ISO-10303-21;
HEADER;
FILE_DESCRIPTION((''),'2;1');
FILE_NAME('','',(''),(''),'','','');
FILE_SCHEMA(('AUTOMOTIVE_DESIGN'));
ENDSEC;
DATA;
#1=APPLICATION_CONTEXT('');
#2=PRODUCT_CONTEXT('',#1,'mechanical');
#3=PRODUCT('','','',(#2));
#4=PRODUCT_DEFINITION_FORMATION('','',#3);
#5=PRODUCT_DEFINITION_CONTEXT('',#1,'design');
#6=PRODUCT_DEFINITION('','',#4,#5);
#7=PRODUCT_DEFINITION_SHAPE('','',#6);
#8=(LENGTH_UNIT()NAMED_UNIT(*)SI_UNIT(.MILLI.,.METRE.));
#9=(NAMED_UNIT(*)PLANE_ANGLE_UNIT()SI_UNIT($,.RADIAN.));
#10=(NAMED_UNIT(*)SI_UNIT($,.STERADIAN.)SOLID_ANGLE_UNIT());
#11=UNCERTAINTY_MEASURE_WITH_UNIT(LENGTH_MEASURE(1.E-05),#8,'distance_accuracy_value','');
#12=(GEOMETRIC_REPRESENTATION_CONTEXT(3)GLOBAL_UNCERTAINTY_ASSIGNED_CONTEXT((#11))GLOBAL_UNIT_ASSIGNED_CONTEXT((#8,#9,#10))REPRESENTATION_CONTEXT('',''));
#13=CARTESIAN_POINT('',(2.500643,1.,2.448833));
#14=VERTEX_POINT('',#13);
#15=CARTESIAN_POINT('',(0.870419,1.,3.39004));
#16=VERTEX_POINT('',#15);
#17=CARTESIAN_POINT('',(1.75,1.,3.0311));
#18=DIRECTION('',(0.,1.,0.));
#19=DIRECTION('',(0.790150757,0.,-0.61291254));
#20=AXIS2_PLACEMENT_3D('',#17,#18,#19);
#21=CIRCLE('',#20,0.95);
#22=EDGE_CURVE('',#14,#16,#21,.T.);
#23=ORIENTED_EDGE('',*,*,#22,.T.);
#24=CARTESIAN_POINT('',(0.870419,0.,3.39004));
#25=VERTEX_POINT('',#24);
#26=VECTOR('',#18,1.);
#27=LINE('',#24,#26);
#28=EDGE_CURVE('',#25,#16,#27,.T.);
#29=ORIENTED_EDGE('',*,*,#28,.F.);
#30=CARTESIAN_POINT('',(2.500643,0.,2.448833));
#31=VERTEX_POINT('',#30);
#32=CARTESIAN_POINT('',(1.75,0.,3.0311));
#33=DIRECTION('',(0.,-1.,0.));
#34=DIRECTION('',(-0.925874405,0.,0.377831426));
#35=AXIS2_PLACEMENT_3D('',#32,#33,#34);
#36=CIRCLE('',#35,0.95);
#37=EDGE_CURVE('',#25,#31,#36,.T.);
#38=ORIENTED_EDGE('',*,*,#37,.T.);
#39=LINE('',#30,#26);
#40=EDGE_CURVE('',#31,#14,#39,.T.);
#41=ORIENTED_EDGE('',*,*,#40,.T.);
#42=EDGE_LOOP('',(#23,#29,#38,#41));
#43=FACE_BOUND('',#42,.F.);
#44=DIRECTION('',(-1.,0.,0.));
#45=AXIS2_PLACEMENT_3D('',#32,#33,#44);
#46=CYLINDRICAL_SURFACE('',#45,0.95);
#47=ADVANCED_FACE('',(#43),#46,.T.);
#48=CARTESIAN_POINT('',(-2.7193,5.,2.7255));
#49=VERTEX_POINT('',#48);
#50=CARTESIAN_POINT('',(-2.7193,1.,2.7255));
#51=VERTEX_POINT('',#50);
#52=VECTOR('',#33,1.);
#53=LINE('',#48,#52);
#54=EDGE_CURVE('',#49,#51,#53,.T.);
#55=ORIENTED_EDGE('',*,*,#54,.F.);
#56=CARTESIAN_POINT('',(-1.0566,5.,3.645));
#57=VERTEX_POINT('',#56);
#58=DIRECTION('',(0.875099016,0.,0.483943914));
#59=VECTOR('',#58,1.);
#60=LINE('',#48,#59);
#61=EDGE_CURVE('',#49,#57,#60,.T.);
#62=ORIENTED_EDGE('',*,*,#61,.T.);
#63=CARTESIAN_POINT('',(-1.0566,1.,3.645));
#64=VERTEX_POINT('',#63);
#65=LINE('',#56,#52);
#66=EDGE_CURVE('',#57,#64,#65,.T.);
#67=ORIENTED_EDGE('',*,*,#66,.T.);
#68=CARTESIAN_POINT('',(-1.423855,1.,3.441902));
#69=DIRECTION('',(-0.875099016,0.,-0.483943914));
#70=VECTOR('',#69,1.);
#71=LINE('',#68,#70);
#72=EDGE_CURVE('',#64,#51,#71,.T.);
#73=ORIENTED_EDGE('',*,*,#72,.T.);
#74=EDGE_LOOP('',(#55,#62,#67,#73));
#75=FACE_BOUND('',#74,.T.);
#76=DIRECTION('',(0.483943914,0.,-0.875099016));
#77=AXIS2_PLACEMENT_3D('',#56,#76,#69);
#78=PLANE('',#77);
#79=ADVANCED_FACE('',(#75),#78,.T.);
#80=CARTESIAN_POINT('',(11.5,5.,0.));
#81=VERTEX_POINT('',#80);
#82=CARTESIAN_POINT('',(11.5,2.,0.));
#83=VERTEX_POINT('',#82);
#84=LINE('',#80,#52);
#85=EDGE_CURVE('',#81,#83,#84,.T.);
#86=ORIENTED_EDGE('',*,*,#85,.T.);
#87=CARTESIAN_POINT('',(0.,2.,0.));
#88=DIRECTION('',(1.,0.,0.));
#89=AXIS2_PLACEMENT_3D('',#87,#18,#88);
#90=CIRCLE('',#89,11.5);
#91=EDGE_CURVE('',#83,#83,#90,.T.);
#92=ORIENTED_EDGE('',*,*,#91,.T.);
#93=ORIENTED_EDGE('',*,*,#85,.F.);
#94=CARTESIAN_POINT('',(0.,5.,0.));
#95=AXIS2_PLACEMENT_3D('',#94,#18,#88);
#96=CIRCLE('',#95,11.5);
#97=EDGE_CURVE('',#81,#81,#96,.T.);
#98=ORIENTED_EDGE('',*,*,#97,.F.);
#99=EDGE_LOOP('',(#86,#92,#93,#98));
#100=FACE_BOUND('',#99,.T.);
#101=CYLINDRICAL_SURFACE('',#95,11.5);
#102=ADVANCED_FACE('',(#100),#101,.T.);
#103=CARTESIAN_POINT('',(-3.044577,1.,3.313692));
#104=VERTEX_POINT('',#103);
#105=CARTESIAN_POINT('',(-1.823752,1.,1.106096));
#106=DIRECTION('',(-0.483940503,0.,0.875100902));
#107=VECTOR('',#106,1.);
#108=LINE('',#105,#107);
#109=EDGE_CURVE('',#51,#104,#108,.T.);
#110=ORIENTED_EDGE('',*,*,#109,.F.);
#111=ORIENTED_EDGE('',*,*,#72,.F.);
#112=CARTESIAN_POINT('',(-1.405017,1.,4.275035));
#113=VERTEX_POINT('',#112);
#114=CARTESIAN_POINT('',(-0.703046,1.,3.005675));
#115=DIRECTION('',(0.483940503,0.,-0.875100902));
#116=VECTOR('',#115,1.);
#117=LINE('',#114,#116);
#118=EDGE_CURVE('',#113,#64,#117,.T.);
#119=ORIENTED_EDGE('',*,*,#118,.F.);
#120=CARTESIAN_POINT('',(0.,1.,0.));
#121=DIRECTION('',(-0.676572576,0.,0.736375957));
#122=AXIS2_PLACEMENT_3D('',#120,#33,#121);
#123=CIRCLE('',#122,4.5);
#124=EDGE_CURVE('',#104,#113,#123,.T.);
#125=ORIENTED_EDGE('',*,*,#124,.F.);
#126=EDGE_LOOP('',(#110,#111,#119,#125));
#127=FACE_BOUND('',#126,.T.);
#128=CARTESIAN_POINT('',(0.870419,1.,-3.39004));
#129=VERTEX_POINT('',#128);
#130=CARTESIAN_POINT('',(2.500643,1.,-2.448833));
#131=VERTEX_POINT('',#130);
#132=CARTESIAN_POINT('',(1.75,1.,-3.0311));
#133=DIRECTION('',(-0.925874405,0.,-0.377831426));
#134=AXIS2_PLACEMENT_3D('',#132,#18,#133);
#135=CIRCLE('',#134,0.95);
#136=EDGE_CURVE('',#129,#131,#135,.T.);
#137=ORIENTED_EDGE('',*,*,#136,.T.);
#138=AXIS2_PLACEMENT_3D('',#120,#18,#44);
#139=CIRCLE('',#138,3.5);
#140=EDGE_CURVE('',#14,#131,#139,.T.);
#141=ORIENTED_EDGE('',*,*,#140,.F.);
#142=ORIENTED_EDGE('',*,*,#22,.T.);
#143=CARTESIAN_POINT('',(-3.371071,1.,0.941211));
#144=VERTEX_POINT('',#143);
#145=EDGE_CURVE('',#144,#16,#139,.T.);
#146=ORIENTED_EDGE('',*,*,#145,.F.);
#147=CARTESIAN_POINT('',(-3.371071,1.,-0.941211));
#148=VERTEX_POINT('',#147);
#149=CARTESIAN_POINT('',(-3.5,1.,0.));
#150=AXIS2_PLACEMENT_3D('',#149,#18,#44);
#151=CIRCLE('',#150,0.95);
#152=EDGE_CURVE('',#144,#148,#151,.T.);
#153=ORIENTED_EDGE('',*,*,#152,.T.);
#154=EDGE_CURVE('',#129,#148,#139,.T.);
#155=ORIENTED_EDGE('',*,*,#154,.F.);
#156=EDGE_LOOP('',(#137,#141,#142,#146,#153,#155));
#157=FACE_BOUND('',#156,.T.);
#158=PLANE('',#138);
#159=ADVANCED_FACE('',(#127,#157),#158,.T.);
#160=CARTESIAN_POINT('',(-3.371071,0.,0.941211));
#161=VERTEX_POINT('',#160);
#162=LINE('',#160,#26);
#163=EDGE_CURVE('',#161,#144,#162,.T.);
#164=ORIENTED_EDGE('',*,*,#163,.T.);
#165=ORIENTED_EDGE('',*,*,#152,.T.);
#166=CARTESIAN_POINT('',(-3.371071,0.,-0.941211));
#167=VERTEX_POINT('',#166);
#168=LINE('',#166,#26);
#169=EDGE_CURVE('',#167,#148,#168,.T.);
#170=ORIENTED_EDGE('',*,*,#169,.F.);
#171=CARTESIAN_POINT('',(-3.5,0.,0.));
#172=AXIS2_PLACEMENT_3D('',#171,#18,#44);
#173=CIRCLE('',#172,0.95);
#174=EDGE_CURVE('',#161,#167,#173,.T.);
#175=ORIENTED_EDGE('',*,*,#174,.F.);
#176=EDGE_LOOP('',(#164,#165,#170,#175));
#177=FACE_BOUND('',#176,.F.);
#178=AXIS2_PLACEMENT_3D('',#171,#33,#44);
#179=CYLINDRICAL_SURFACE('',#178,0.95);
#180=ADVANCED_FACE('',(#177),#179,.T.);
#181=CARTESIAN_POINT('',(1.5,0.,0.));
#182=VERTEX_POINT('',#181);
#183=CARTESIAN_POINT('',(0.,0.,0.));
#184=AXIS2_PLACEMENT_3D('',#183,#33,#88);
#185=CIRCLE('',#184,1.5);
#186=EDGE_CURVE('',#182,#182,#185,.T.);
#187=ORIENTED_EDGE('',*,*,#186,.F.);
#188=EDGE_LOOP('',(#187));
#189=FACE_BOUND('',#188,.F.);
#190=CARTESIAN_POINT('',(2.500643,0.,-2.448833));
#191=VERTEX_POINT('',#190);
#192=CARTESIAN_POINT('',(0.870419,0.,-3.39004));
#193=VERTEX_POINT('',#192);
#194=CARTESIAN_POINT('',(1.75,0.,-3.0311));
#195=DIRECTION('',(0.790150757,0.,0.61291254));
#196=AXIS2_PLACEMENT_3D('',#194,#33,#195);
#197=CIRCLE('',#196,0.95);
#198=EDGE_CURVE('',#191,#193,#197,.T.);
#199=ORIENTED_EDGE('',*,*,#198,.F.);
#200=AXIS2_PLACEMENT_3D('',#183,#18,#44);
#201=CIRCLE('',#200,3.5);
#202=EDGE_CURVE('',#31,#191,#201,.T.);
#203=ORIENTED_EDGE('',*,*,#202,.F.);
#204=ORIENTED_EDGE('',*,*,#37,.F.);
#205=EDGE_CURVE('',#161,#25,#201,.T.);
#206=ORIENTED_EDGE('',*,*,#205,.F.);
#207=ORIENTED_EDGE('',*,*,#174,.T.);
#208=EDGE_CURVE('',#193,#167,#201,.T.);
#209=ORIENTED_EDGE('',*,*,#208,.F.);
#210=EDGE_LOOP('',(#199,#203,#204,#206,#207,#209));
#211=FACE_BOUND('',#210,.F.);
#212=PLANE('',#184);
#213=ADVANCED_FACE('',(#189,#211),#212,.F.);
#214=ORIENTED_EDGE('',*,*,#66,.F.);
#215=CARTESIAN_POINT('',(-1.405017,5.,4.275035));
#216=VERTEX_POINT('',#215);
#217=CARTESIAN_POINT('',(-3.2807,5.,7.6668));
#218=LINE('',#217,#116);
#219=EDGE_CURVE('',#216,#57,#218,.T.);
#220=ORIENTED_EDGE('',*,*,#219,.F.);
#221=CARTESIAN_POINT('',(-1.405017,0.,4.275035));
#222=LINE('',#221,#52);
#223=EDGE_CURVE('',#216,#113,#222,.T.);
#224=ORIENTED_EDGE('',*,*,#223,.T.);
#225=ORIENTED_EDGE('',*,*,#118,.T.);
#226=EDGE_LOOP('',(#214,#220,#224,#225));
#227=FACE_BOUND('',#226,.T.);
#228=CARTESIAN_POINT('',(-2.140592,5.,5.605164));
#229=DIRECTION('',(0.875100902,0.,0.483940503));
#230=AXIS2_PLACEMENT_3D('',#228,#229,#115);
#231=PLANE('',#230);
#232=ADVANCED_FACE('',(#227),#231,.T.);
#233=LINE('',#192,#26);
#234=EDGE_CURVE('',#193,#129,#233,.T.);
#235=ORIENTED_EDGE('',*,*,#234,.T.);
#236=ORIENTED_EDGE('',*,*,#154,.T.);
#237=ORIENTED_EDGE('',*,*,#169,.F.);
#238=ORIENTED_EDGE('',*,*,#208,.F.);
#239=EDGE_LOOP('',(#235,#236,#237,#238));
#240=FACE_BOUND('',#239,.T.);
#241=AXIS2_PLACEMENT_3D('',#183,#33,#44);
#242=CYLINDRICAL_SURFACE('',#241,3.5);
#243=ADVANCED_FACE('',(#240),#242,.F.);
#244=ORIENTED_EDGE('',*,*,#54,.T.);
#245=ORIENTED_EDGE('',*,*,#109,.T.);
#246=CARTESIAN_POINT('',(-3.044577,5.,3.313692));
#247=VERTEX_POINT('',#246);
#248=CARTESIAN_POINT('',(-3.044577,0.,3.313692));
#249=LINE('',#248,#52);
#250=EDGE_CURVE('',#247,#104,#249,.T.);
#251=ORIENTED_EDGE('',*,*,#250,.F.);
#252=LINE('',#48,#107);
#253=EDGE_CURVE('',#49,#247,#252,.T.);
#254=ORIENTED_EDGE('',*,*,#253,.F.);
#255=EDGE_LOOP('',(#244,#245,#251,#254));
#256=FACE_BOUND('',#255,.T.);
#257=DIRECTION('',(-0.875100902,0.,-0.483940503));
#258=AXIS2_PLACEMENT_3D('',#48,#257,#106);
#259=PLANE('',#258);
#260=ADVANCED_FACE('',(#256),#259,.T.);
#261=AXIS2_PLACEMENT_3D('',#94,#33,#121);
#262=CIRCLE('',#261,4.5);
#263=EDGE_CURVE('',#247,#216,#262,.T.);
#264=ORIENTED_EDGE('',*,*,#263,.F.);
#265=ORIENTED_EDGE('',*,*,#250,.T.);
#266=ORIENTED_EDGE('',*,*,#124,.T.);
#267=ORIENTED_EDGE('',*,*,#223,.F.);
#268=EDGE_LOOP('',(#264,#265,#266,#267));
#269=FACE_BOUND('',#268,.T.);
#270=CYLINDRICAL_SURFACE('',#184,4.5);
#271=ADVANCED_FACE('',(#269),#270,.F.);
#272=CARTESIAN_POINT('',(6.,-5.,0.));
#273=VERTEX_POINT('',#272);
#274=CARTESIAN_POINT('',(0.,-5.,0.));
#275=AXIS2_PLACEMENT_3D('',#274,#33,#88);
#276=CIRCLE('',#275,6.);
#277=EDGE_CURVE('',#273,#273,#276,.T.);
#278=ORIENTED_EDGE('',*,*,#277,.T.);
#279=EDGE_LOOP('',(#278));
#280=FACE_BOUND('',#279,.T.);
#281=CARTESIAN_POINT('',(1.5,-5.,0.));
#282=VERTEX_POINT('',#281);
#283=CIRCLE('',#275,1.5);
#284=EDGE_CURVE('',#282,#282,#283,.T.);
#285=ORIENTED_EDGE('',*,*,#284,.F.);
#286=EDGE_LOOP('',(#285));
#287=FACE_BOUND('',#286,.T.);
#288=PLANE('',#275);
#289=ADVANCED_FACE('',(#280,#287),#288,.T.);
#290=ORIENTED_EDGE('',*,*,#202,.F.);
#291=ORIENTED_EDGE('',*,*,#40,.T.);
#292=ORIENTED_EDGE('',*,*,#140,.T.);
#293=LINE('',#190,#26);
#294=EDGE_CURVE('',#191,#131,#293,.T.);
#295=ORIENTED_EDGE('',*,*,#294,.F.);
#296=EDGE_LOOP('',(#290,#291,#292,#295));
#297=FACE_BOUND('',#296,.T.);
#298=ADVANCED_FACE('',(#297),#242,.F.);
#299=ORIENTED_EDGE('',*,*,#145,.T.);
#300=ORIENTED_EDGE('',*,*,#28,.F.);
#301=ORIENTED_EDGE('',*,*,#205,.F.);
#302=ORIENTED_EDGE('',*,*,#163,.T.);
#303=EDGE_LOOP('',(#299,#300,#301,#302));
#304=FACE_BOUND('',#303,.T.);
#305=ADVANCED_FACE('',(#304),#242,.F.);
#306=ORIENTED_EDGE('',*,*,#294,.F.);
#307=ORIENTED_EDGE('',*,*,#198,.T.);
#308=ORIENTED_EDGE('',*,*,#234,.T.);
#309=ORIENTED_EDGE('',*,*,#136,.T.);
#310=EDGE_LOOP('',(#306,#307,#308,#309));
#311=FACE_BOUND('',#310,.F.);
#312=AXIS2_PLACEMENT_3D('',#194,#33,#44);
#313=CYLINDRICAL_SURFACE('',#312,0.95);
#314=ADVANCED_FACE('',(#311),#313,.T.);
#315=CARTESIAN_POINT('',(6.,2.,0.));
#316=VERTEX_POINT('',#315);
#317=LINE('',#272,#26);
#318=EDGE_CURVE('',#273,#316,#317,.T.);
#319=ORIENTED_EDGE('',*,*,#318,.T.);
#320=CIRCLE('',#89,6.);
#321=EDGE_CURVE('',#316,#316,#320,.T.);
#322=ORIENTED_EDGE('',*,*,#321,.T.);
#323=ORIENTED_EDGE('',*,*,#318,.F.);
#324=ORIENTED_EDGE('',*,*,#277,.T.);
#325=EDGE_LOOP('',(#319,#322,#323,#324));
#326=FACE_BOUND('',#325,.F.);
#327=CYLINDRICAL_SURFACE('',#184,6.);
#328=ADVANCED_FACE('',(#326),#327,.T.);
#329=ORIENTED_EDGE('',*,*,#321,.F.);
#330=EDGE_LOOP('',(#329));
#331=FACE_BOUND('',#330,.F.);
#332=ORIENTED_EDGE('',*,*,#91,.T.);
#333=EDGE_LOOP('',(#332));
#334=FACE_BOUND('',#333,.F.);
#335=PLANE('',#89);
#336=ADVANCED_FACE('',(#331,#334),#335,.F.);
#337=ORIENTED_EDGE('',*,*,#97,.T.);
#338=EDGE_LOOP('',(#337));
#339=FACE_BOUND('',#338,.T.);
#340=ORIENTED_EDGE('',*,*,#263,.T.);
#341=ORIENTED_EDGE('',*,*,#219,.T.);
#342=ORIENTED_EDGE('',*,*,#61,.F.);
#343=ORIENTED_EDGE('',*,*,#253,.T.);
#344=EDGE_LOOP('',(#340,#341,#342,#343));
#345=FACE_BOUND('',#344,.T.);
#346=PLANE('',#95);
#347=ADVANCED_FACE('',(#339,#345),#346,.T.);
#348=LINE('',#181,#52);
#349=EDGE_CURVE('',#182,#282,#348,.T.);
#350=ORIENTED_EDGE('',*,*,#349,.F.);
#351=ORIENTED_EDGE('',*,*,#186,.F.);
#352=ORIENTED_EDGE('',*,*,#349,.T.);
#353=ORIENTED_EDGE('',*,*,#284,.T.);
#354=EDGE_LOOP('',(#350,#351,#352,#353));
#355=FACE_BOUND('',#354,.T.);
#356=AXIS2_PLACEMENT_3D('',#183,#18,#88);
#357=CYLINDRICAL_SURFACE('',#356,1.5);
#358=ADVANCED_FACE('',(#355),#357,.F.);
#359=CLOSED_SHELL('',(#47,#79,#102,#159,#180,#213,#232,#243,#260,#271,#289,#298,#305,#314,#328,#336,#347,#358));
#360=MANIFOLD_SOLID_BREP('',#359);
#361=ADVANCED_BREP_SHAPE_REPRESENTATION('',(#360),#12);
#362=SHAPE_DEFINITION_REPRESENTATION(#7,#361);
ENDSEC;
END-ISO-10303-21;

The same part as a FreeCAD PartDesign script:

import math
import FreeCAD as App
import Part
import Sketcher
from FreeCAD import Vector
Q = App.Units.Quantity

doc = App.newDocument("Part")
body = doc.addObject("PartDesign::Body", "Body")

sketch1 = body.newObject("Sketcher::SketchObject", "Sketch")
sketch1.AttachmentSupport = (doc.getObject("XZ_Plane"), [""])
sketch1.MapMode = "FlatFace"
sketch1.addGeometry([
    Part.Circle(Vector(0, 0, 0), Vector(0, 0, 1), 4.5),
    Part.ArcOfCircle(Part.Circle(Vector(-3.5, 0, 0), Vector(0, 0, 1), 0.9), math.radians(-82), math.radians(82)),
    Part.ArcOfCircle(Part.Circle(Vector(0, 0, 0), Vector(0, 0, 1), 3.5), math.radians(-164), math.radians(-76)),
    Part.ArcOfCircle(Part.Circle(Vector(1.8, -3, 0), Vector(0, 0, 1), 0.9), math.radians(38), math.radians(202)),
    Part.ArcOfCircle(Part.Circle(Vector(0, 0, 0), Vector(0, 0, 1), 3.5), math.radians(-44), math.radians(44)),
    Part.ArcOfCircle(Part.Circle(Vector(1.8, 3, 0), Vector(0, 0, 1), 0.9), math.radians(158), math.radians(322)),
    Part.ArcOfCircle(Part.Circle(Vector(0, 0, 0), Vector(0, 0, 1), 3.5), math.radians(76), math.radians(164)),
], False)
sketch1.addConstraint([
    Sketcher.Constraint("Coincident", 1, 1, 2, 1),
    Sketcher.Constraint("Coincident", 2, 2, 3, 2),
    Sketcher.Constraint("Coincident", 3, 1, 4, 1),
    Sketcher.Constraint("Coincident", 4, 2, 5, 2),
    Sketcher.Constraint("Coincident", 5, 1, 6, 1),
    Sketcher.Constraint("Coincident", 6, 2, 1, 2),
    Sketcher.Constraint("Coincident", 0, 3, -1, 1),
    Sketcher.Constraint("Coincident", 2, 3, -1, 1),
    Sketcher.Constraint("Coincident", 4, 3, -1, 1),
    Sketcher.Constraint("Coincident", 6, 3, -1, 1),
    Sketcher.Constraint("Equal", 1, 3),
    Sketcher.Constraint("Equal", 2, 4),
    Sketcher.Constraint("Equal", 3, 5),
    Sketcher.Constraint("Equal", 4, 6),
    Sketcher.Constraint("Symmetric", 3, 3, 5, 3, -1),
    Sketcher.Constraint("PointOnObject", 1, 3, -1),
    Sketcher.Constraint("Diameter", 0, Q("9 mm")),
    Sketcher.Constraint("Radius", 2, Q("3.5 mm")),
    Sketcher.Constraint("Radius", 1, Q("0.95 mm")),
    Sketcher.Constraint("DistanceX", 1, 3, -1, 1, Q("3.5 mm")),
    Sketcher.Constraint("DistanceX", -1, 1, 3, 3, Q("1.75 mm")),
    Sketcher.Constraint("DistanceY", 2, 2, -1, 1, Q("3.39 mm")),
])
pad1 = body.newObject("PartDesign::Pad", "Pad")
pad1.Profile = sketch1
pad1.Length = 1
pad1.Reversed = True

sketch2 = body.newObject("Sketcher::SketchObject", "Sketch001")
sketch2.AttachmentSupport = (doc.getObject("XZ_Plane"), [""])
sketch2.MapMode = "FlatFace"
sketch2.addGeometry([
    Part.Circle(Vector(0, 0, 0), Vector(0, 0, 1), 6),
    Part.Circle(Vector(0, 0, 0), Vector(0, 0, 1), 1.5),
], False)
sketch2.addConstraint([
    Sketcher.Constraint("Coincident", 0, 3, -1, 1),
    Sketcher.Constraint("Coincident", 1, 3, -1, 1),
    Sketcher.Constraint("Diameter", 0, Q("12 mm")),
    Sketcher.Constraint("Diameter", 1, Q("3 mm")),
])
pad2 = body.newObject("PartDesign::Pad", "Pad001")
pad2.Profile = sketch2
pad2.Length = 5

sketch3 = body.newObject("Sketcher::SketchObject", "Sketch002")
sketch3.AttachmentSupport = (doc.getObject("XZ_Plane"), [""])
sketch3.MapMode = "FlatFace"
sketch3.addGeometry([
    Part.Circle(Vector(0, 0, 0), Vector(0, 0, 1), 6),
    Part.Circle(Vector(0, 0, 0), Vector(0, 0, 1), 4.5),
], False)
sketch3.addConstraint([
    Sketcher.Constraint("Coincident", 0, 3, -1, 1),
    Sketcher.Constraint("Coincident", 1, 3, -1, 1),
    Sketcher.Constraint("Diameter", 0, Q("12 mm")),
    Sketcher.Constraint("Diameter", 1, Q("9 mm")),
])
pad3 = body.newObject("PartDesign::Pad", "Pad002")
pad3.Profile = sketch3
pad3.Length = 5
pad3.Reversed = True

sketch4 = body.newObject("Sketcher::SketchObject", "Sketch003")
sketch4.AttachmentSupport = (doc.getObject("XZ_Plane"), [""])
sketch4.MapMode = "FlatFace"
sketch4.AttachmentOffset = App.Placement(Vector(0, 0, -5), App.Rotation())
sketch4.addGeometry([
    Part.LineSegment(Vector(-1.1, 3.6, 0), Vector(-2.7, 2.7, 0)),
    Part.LineSegment(Vector(-2.7, 2.7, 0), Vector(-3.8, 4.7, 0)),
    Part.ArcOfCircle(Part.Circle(Vector(0, 0, 0), Vector(0, 0, 1), 6), math.radians(110.9), math.radians(129.13)),
    Part.LineSegment(Vector(-2.1, 5.6, 0), Vector(-1.1, 3.6, 0)),
], False)
sketch4.addConstraint([
    Sketcher.Constraint("Coincident", 0, 2, 1, 1),
    Sketcher.Constraint("Coincident", 1, 2, 2, 2),
    Sketcher.Constraint("Coincident", 2, 1, 3, 1),
    Sketcher.Constraint("Coincident", 3, 2, 0, 1),
    Sketcher.Constraint("Coincident", 2, 3, -1, 1),
    Sketcher.Constraint("Perpendicular", 0, 1),
    Sketcher.Constraint("Parallel", 1, 3),
    Sketcher.Constraint("Radius", 2, Q("6 mm")),
    Sketcher.Constraint("Distance", 0, Q("1.9 mm")),
    Sketcher.Constraint("Distance", 3, Q("2.24 mm")),
    Sketcher.Constraint("DistanceX", 1, 2, -1, 1, Q("3.786 mm")),
    Sketcher.Constraint("DistanceY", -1, 1, 3, 2, Q("3.645 mm")),
])
pad4 = body.newObject("PartDesign::Pad", "Pad003")
pad4.Profile = sketch4
pad4.Length = 5

sketch5 = body.newObject("Sketcher::SketchObject", "Sketch004")
sketch5.AttachmentSupport = (doc.getObject("XZ_Plane"), [""])
sketch5.MapMode = "FlatFace"
sketch5.AttachmentOffset = App.Placement(Vector(0, 0, -5), App.Rotation())
sketch5.addGeometry([
    Part.Circle(Vector(0, 0, 0), Vector(0, 0, 1), 12),
    Part.Circle(Vector(0, 0, 0), Vector(0, 0, 1), 6),
], False)
sketch5.addConstraint([
    Sketcher.Constraint("Coincident", 0, 3, -1, 1),
    Sketcher.Constraint("Coincident", 1, 3, -1, 1),
    Sketcher.Constraint("Diameter", 0, Q("23 mm")),
    Sketcher.Constraint("Diameter", 1, Q("12 mm")),
])
pad5 = body.newObject("PartDesign::Pad", "Pad004")
pad5.Profile = sketch5
pad5.Length = 3

doc.recompute()
